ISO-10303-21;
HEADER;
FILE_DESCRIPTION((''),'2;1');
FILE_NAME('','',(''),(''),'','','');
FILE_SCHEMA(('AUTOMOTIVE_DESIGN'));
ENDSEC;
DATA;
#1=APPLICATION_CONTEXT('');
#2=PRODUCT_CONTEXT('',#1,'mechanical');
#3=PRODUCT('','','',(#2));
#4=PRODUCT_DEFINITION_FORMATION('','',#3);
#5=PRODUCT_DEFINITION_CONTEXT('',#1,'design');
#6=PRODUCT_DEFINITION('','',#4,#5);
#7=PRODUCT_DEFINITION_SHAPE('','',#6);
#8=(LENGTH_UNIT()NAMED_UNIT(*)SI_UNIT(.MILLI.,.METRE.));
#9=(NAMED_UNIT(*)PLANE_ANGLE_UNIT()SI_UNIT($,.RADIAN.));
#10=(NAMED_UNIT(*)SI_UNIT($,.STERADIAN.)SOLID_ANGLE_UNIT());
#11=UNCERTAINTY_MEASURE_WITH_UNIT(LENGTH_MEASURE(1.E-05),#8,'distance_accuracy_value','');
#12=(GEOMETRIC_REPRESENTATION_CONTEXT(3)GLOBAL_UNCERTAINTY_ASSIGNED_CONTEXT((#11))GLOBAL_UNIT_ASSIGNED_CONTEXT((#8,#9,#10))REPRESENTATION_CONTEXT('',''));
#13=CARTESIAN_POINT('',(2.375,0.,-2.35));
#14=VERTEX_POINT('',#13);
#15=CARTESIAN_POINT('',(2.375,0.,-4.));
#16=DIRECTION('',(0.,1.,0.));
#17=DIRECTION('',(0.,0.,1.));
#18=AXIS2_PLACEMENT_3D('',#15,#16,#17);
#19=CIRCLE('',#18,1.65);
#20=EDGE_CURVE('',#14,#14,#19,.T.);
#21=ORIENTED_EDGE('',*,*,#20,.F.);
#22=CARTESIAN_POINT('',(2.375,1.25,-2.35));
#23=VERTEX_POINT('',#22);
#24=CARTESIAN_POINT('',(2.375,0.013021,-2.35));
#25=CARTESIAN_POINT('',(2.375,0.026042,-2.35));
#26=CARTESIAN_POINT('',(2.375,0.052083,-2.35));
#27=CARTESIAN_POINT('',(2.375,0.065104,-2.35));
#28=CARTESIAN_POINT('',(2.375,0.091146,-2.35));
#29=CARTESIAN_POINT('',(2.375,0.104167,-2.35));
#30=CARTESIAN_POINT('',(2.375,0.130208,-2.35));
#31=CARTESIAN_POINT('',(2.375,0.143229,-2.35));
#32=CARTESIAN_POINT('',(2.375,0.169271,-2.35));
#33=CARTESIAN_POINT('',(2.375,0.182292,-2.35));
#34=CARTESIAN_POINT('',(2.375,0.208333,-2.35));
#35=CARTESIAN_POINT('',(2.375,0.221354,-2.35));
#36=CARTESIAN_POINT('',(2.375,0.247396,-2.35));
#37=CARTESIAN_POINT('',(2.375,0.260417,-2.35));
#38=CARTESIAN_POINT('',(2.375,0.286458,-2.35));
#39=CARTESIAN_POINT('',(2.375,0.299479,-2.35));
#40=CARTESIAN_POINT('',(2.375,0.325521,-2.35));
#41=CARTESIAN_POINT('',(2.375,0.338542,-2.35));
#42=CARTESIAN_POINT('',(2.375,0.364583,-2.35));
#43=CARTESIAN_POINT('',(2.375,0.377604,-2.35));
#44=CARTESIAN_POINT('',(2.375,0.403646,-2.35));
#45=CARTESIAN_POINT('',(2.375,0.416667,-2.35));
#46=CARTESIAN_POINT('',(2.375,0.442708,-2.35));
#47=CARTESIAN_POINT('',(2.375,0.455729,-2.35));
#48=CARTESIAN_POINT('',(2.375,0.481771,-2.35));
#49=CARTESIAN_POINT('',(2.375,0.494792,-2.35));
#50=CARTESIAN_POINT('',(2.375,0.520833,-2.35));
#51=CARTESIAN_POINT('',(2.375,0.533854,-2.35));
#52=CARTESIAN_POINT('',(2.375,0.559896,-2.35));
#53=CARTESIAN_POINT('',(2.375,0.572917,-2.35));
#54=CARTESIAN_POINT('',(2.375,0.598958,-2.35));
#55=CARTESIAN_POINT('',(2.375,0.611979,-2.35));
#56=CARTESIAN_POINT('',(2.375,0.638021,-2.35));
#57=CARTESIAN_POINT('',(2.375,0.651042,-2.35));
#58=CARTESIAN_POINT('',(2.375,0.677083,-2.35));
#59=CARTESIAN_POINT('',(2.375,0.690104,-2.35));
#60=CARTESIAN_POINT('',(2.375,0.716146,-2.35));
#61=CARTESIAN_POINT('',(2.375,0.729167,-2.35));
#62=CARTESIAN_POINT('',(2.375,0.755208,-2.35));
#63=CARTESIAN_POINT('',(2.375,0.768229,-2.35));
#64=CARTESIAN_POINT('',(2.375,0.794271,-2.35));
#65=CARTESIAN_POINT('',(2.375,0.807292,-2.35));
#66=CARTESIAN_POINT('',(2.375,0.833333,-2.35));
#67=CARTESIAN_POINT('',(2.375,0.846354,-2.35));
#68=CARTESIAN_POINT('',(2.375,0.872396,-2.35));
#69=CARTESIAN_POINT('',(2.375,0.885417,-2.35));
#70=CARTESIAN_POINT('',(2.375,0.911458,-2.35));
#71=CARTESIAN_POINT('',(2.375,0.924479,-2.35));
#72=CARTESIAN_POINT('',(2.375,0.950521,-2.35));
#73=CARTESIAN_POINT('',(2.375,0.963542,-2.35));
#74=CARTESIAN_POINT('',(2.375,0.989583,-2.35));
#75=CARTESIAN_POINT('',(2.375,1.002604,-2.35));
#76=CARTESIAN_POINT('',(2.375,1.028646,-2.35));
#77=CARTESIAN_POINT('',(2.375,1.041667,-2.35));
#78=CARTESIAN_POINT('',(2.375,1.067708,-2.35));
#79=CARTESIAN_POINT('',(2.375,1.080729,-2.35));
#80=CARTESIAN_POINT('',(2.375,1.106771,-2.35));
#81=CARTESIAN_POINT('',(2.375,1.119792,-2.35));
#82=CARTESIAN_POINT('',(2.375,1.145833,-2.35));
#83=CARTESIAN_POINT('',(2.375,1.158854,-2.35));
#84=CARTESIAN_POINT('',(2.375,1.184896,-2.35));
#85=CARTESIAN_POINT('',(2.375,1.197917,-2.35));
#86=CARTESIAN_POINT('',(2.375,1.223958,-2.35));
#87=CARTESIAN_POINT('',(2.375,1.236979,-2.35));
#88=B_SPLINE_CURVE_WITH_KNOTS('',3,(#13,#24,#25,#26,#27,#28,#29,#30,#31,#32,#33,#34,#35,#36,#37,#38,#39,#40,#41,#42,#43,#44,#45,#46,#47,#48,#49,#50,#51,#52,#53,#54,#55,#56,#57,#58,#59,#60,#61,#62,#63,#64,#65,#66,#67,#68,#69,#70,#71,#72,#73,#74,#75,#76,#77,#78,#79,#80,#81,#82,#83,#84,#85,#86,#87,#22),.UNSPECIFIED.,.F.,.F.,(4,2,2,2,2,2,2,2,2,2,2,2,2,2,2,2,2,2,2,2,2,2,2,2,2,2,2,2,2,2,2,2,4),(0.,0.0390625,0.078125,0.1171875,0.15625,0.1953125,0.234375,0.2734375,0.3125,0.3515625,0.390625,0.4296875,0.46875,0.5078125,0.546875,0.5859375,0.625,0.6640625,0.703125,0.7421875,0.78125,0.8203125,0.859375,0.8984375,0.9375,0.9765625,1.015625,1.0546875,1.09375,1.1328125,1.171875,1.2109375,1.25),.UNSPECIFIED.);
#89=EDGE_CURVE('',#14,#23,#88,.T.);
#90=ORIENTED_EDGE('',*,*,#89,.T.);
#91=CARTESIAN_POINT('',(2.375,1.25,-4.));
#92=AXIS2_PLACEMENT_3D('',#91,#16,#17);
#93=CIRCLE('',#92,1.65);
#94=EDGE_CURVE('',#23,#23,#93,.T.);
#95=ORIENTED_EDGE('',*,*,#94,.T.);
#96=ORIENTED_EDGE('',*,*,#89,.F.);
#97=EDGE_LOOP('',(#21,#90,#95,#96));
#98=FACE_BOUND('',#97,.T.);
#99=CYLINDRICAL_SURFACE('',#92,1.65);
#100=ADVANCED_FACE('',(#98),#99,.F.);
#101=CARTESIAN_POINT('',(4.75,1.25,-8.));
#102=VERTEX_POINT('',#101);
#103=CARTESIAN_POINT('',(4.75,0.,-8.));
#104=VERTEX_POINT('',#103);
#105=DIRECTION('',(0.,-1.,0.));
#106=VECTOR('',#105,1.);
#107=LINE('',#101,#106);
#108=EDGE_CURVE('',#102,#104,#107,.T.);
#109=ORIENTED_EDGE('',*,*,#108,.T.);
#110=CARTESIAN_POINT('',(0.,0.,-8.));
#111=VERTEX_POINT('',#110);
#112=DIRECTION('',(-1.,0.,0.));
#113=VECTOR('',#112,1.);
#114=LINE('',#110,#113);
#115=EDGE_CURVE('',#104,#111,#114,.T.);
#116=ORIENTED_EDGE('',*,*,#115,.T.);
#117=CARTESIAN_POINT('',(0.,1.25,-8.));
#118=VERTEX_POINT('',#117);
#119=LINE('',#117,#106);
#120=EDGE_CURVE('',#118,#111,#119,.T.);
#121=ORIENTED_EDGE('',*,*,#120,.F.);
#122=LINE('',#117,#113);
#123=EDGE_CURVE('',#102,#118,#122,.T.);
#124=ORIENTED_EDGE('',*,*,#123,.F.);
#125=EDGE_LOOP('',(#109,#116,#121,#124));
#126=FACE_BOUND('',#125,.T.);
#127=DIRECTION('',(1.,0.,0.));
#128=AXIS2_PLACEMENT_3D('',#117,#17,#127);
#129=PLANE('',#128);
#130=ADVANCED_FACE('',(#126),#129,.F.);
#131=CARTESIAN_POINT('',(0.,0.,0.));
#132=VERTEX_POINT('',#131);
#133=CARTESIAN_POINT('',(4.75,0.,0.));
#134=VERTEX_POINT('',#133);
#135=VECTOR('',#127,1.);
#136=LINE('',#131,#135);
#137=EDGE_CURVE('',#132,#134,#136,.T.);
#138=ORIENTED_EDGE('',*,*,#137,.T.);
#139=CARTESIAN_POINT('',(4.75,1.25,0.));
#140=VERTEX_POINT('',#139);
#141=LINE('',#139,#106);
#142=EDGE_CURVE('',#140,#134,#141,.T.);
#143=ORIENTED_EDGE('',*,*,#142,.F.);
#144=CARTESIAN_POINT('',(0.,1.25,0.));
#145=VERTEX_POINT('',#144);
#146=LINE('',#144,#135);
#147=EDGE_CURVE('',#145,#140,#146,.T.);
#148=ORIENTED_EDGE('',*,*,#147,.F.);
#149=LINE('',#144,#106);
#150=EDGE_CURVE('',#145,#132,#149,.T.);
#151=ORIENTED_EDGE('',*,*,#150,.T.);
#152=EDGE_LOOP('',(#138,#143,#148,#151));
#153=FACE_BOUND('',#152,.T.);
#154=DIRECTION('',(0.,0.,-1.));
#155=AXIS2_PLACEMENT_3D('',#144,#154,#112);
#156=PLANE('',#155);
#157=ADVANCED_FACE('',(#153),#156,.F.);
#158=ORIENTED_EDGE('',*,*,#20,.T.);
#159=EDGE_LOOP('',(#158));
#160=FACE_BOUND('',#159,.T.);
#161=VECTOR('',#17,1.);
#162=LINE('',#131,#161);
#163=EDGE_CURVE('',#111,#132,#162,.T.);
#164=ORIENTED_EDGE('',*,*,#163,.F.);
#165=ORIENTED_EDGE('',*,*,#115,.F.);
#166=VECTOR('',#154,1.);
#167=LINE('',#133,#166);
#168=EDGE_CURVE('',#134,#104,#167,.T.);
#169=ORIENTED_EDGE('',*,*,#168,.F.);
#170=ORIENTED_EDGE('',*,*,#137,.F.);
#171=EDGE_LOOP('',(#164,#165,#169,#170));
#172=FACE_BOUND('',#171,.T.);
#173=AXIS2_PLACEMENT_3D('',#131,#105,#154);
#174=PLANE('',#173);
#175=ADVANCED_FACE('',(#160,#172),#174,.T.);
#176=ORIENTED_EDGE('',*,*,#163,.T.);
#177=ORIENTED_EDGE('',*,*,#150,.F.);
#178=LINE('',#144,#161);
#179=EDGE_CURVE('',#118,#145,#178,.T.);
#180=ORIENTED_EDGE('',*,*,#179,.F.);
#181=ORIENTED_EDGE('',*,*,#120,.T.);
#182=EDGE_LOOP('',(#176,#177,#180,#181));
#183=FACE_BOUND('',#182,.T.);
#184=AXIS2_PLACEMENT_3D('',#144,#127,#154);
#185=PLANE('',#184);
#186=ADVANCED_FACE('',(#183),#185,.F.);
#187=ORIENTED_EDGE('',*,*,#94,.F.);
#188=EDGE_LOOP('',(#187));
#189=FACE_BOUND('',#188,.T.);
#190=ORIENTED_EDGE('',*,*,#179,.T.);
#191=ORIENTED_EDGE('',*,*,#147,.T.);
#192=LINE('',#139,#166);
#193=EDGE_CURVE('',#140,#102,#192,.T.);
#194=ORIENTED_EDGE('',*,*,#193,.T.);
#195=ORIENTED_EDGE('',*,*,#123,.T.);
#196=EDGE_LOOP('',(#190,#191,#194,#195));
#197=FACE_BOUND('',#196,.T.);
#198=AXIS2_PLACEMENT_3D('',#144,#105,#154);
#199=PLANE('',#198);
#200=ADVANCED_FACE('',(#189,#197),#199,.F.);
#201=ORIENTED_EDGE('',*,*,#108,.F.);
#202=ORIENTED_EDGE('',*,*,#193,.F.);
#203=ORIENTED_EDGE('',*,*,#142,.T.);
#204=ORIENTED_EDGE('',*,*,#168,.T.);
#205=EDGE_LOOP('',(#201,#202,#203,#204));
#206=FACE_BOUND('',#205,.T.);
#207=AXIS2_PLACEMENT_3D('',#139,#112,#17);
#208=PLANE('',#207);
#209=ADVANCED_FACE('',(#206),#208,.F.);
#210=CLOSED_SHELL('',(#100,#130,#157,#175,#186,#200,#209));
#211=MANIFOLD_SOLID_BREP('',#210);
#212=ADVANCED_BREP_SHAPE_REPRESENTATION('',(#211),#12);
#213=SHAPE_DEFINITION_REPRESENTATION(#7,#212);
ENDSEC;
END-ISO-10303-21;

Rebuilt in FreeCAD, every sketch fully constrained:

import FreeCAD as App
import Part
import Sketcher
Q = App.Units.Quantity

doc = App.newDocument("Part")
body = doc.addObject("PartDesign::Body", "Body")

sketch1 = doc.addObject("Sketcher::SketchObject", "Sketch")
body.addObject(sketch1)
sketch1.AttachmentSupport = (doc.XZ_Plane, [""])
sketch1.MapMode = "FlatFace"
sketch1.addGeometry([
    Part.LineSegment(App.Vector(0, -8, 0), App.Vector(0, 0, 0)),
    Part.LineSegment(App.Vector(0, 0, 0), App.Vector(4.75, 0, 0)),
    Part.LineSegment(App.Vector(4.75, 0, 0), App.Vector(4.75, -8, 0)),
    Part.LineSegment(App.Vector(4.75, -8, 0), App.Vector(0, -8, 0)),
], False)
sketch1.addConstraint([
    Sketcher.Constraint("Coincident", 0, 2, 1, 1),
    Sketcher.Constraint("Coincident", 1, 2, 2, 1),
    Sketcher.Constraint("Coincident", 2, 2, 3, 1),
    Sketcher.Constraint("Coincident", 3, 2, 0, 1),
    Sketcher.Constraint("Vertical", 0),
    Sketcher.Constraint("Horizontal", 1),
    Sketcher.Constraint("Vertical", 2),
    Sketcher.Constraint("Horizontal", 3),
    Sketcher.Constraint("Coincident", 0, 2, -1, 1),
    Sketcher.Constraint("DistanceY", 0, 1, 0, 2, Q("8 mm")),
    Sketcher.Constraint("DistanceX", 1, 1, 1, 2, Q("4.75 mm")),
])
pad1 = doc.addObject("PartDesign::Pad", "Pad")
body.addObject(pad1)
pad1.Profile = sketch1
pad1.Length = 1.25
pad1.Reversed = True

sketch2 = doc.addObject("Sketcher::SketchObject", "Sketch001")
body.addObject(sketch2)
sketch2.AttachmentSupport = (doc.XZ_Plane, [""])
sketch2.MapMode = "FlatFace"
sketch2.AttachmentOffset = App.Placement(App.Vector(0, 0, -1.25), App.Rotation())
sketch2.addGeometry(Part.Circle(App.Vector(2.375, -4, 0), App.Vector(0, 0, 1), 1.65), False)
sketch2.addConstraint([
    Sketcher.Constraint("Diameter", 0, Q("3.3 mm")),
    Sketcher.Constraint("DistanceY", 0, 3, -1, 1, Q("4 mm")),
    Sketcher.Constraint("DistanceX", -1, 1, 0, 3, Q("2.375 mm")),
])
doc.recompute()
hole = doc.addObject("PartDesign::Hole", "Hole")
body.addObject(hole)
hole.Profile = sketch2
hole.ThreadType = "None"
hole.Diameter = 3.3
hole.DepthType = "ThroughAll"
hole.Reversed = True

doc.recompute()
